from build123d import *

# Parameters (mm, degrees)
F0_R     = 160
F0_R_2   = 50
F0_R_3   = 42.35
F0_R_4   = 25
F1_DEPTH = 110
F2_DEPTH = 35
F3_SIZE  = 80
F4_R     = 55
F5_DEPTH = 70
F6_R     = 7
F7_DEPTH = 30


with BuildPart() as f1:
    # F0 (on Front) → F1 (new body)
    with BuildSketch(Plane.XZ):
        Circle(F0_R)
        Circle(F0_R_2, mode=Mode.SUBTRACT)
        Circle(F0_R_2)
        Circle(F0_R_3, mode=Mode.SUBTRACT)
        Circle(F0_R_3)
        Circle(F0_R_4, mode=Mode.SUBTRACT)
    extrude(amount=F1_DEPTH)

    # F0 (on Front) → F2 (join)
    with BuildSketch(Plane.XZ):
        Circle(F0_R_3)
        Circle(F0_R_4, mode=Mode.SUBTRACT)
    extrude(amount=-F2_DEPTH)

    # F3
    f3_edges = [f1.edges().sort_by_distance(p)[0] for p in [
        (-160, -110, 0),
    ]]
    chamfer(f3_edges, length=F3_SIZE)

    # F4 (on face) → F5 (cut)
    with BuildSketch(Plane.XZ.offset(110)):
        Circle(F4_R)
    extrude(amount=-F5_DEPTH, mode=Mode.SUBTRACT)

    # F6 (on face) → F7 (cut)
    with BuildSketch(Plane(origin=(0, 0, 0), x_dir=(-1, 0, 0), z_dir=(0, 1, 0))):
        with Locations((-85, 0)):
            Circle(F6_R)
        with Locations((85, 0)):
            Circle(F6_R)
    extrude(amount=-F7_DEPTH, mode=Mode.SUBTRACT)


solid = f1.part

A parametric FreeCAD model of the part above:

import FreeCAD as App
import Part
import Sketcher
from FreeCAD import Vector


def edges_at(feature, points):
    """Names of the edges that pass closest to the given points."""
    edges = feature.Shape.Edges
    near = lambda p: min(range(len(edges)), key=lambda i: edges[i].distToShape(Part.Vertex(*p))[0])
    return sorted({f"Edge{near(p) + 1}" for p in points})

doc = App.newDocument("Part")
body = doc.addObject("PartDesign::Body", "Body")

# Sketch on XZ plane
sketch1 = doc.addObject("Sketcher::SketchObject", "Sketch")
body.addObject(sketch1)
sketch1.AttachmentSupport = (doc.XZ_Plane, [""])
sketch1.MapMode = "FlatFace"
sketch1.addGeometry(Part.Circle(Vector(0, 0, 0), Vector(0, 0, 1), 160), False)
sketch1.addGeometry(Part.Circle(Vector(0, 0, 0), Vector(0, 0, 1), 25), False)
sketch1.addConstraint(Sketcher.Constraint("Coincident", 0, 3, -1, 1))
sketch1.addConstraint(Sketcher.Constraint("Coincident", 1, 3, -1, 1))
sketch1.addConstraint(Sketcher.Constraint("Diameter", 0, 320.0))
sketch1.addConstraint(Sketcher.Constraint("Diameter", 1, 50.0))
pad1 = doc.addObject("PartDesign::Pad", "Pad")
body.addObject(pad1)
pad1.Profile = sketch1
pad1.Length = 110

# Sketch on XZ plane
sketch2 = doc.addObject("Sketcher::SketchObject", "Sketch001")
body.addObject(sketch2)
sketch2.AttachmentSupport = (doc.XZ_Plane, [""])
sketch2.MapMode = "FlatFace"
sketch2.addGeometry(Part.Circle(Vector(0, 0, 0), Vector(0, 0, 1), 42.35), False)
sketch2.addGeometry(Part.Circle(Vector(0, 0, 0), Vector(0, 0, 1), 25), False)
sketch2.addConstraint(Sketcher.Constraint("Coincident", 0, 3, -1, 1))
sketch2.addConstraint(Sketcher.Constraint("Coincident", 1, 3, -1, 1))
sketch2.addConstraint(Sketcher.Constraint("Diameter", 1, 50.0))
sketch2.addConstraint(Sketcher.Constraint("Diameter", 0, 84.7))
pad2 = doc.addObject("PartDesign::Pad", "Pad001")
body.addObject(pad2)
pad2.Profile = sketch2
pad2.Length = 35
pad2.Reversed = True
doc.recompute()

chamfer = doc.addObject("PartDesign::Chamfer", "Chamfer")
body.addObject(chamfer)
chamfer.Base = (pad2, edges_at(pad2, [(-160, -110, 0)]))
chamfer.Size = 80

# Sketch on XZ plane
sketch3 = doc.addObject("Sketcher::SketchObject", "Sketch002")
body.addObject(sketch3)
sketch3.AttachmentSupport = (doc.XZ_Plane, [""])
sketch3.MapMode = "FlatFace"
sketch3.AttachmentOffset = App.Placement(Vector(0, 0, 110), App.Rotation())
sketch3.addGeometry(Part.Circle(Vector(0, 0, 0), Vector(0, 0, 1), 55), False)
sketch3.addConstraint(Sketcher.Constraint("Coincident", 0, 3, -1, 1))
sketch3.addConstraint(Sketcher.Constraint("Diameter", 0, 110.0))
pocket1 = doc.addObject("PartDesign::Pocket", "Pocket")
body.addObject(pocket1)
pocket1.Profile = sketch3
pocket1.Length = 70

# Sketch on XZ plane
sketch4 = doc.addObject("Sketcher::SketchObject", "Sketch003")
body.addObject(sketch4)
sketch4.AttachmentSupport = (doc.XZ_Plane, [""])
sketch4.MapMode = "FlatFace"
sketch4.addGeometry(Part.Circle(Vector(85, 0, 0), Vector(0, 0, 1), 7), False)
sketch4.addGeometry(Part.Circle(Vector(-85, 0, 0), Vector(0, 0, 1), 7), False)
sketch4.addConstraint(Sketcher.Constraint("Equal", 0, 1))
sketch4.addConstraint(Sketcher.Constraint("Symmetric", 0, 3, 1, 3, -1, 1))
sketch4.addConstraint(Sketcher.Constraint("PointOnObject", 0, 3, -1))
sketch4.addConstraint(Sketcher.Constraint("Diameter", 0, 14.0))
sketch4.addConstraint(Sketcher.Constraint("DistanceX", -1, 1, 0, 3, 85.0))
pocket2 = doc.addObject("PartDesign::Pocket", "Pocket001")
body.addObject(pocket2)
pocket2.Profile = sketch4
pocket2.Length = 30
pocket2.Reversed = True

doc.recompute()
